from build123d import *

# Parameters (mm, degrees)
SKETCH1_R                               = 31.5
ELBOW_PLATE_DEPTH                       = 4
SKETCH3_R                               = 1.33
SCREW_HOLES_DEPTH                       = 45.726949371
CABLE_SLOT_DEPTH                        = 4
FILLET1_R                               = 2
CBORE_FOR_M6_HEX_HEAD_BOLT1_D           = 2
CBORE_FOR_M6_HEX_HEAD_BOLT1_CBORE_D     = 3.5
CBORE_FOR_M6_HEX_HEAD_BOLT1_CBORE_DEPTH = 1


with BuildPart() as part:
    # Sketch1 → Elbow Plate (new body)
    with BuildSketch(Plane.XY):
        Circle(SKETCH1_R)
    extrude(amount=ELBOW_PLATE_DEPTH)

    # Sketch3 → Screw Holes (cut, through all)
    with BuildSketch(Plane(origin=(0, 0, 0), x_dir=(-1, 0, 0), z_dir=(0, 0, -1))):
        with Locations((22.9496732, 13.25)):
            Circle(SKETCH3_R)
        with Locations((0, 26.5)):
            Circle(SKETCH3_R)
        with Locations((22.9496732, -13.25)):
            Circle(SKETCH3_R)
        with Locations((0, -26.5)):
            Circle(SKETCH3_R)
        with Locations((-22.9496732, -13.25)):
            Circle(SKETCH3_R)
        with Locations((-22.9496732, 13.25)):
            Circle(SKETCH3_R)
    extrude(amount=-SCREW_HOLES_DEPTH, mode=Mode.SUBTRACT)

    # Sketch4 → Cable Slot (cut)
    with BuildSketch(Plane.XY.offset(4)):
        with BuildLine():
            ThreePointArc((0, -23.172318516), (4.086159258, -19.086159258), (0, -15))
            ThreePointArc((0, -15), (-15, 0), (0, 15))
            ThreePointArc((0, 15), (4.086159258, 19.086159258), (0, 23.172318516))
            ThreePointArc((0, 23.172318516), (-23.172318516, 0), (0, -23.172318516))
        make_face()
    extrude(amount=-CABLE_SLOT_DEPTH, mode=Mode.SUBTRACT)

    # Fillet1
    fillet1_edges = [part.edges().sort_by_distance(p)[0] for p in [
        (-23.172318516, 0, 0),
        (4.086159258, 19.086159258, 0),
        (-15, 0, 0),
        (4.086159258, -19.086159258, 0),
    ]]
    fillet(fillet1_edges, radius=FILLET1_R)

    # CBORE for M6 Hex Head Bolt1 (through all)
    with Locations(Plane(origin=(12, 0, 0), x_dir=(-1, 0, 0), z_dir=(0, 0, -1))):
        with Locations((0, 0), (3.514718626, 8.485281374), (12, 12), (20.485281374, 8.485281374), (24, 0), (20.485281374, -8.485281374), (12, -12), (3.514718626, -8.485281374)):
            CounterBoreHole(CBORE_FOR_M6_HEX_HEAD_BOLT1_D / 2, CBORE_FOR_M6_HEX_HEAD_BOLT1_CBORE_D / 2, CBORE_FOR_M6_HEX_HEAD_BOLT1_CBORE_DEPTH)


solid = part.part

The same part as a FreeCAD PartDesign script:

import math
import FreeCAD as App
import Part
import Sketcher

V = App.Vector
Q = App.Units.Quantity


def edges_at(feature, points):
    """Names of the edges that pass closest to the given points."""
    edges = feature.Shape.Edges
    near = lambda p: min(range(len(edges)), key=lambda i: edges[i].distToShape(Part.Vertex(*p))[0])
    return sorted({f"Edge{near(p) + 1}" for p in points})

doc = App.newDocument("Part")
body = doc.addObject("PartDesign::Body", "Body")

# Sketch on XY plane
sketch1 = body.newObject("Sketcher::SketchObject", "Sketch")
sketch1.AttachmentSupport = (doc.getObject("XY_Plane"), [""])
sketch1.MapMode = "FlatFace"
sketch1.addGeometry(Part.Circle(V(0, 0, 0), V(0, 0, 1), 32), False)
sketch1.addConstraint([
    Sketcher.Constraint("Coincident", 0, 3, -1, 1),
    Sketcher.Constraint("Diameter", 0, Q("63 mm")),
])
pad1 = body.newObject("PartDesign::Pad", "Pad")
pad1.Profile = sketch1
pad1.Length = 4

# Sketch on XY plane
sketch2 = body.newObject("Sketcher::SketchObject", "Sketch001")
sketch2.AttachmentSupport = (doc.getObject("XY_Plane"), [""])
sketch2.MapMode = "FlatFace"
sketch2.addGeometry([
    Part.Circle(V(-22.9, 13.2, 0), V(0, 0, 1), 1.3),  # 0
    Part.Circle(V(0, 26.5, 0), V(0, 0, 1), 1.3),  # 1
    Part.Circle(V(-22.9, -13.2, 0), V(0, 0, 1), 1.3),  # 2
    Part.Circle(V(0, -26.5, 0), V(0, 0, 1), 1.3),  # 3
    Part.Circle(V(22.9, -13.2, 0), V(0, 0, 1), 1.3),  # 4
    Part.Circle(V(22.9, 13.2, 0), V(0, 0, 1), 1.3),  # 5
], False)
sketch2.addConstraint([
    Sketcher.Constraint("Equal", 0, 1),
    Sketcher.Constraint("Equal", 1, 2),
    Sketcher.Constraint("Equal", 2, 3),
    Sketcher.Constraint("Equal", 3, 4),
    Sketcher.Constraint("Equal", 4, 5),
    Sketcher.Constraint("Symmetric", 1, 3, 3, 3, -1, 1),
    Sketcher.Constraint("Symmetric", 0, 3, 4, 3, -1, 1),
    Sketcher.Constraint("Symmetric", 2, 3, 5, 3, -1, 1),
    Sketcher.Constraint("Symmetric", 2, 3, 4, 3, -2),
    Sketcher.Constraint("PointOnObject", 1, 3, -2),
    Sketcher.Constraint("Diameter", 0, Q("2.66 mm")),
    Sketcher.Constraint("DistanceY", 3, 3, 1, 3, Q("53 mm")),
    Sketcher.Constraint("DistanceY", 2, 3, 0, 3, Q("26.5 mm")),
    Sketcher.Constraint("DistanceX", 0, 3, -1, 1, Q("22.949673 mm")),
])
pocket1 = body.newObject("PartDesign::Pocket", "Pocket")
pocket1.Profile = sketch2
pocket1.Type = "ThroughAll"
pocket1.Reversed = True

# Sketch on XY plane
sketch3 = body.newObject("Sketcher::SketchObject", "Sketch002")
sketch3.AttachmentSupport = (doc.getObject("XY_Plane"), [""])
sketch3.MapMode = "FlatFace"
sketch3.AttachmentOffset = App.Placement(V(0, 0, 4), App.Rotation())
sketch3.addGeometry([
    Part.ArcOfCircle(Part.Circle(V(0, -19.1, 0), V(0, 0, 1), 4.1), math.radians(-90), math.radians(90)),
    Part.ArcOfCircle(Part.Circle(V(0, 0, 0), V(0, 0, 1), 15), math.radians(90), math.radians(270)),
    Part.ArcOfCircle(Part.Circle(V(0, 19.1, 0), V(0, 0, 1), 4.1), math.radians(-90), math.radians(90)),
    Part.ArcOfCircle(Part.Circle(V(0, 0, 0), V(0, 0, 1), 23.2), math.radians(90), math.radians(270)),
], False)
sketch3.addConstraint([
    Sketcher.Constraint("Tangent", 0, 2, 1, 2),
    Sketcher.Constraint("Tangent", 1, 1, 2, 1),
    Sketcher.Constraint("Tangent", 2, 2, 3, 1),
    Sketcher.Constraint("Tangent", 3, 2, 0, 1),
    Sketcher.Constraint("Coincident", 1, 3, -1, 1),
    Sketcher.Constraint("Coincident", 3, 3, -1, 1),
    Sketcher.Constraint("PointOnObject", 0, 3, -2),
    Sketcher.Constraint("PointOnObject", 2, 3, -2),
    Sketcher.Constraint("Radius", 1, Q("15 mm")),
    Sketcher.Constraint("Radius", 0, Q("4.086159 mm")),
])
pocket2 = body.newObject("PartDesign::Pocket", "Pocket001")
pocket2.Profile = sketch3
pocket2.Length = 4
doc.recompute()

fillet = body.newObject("PartDesign::Fillet", "Fillet")
fillet.Base = (pocket2, edges_at(pocket2, [
    (-23.172, 0, 0),
    (4.086, 19.086, 0),
    (-15, 0, 0),
    (4.086, -19.086, 0),
]))
fillet.Radius = 2

# Sketch on XY plane
sketch4 = body.newObject("Sketcher::SketchObject", "Sketch003")
sketch4.AttachmentSupport = (doc.getObject("XY_Plane"), [""])
sketch4.MapMode = "FlatFace"
sketch4.addGeometry([
    Part.Circle(V(12, 0, 0), V(0, 0, 1), 1),  # 0
    Part.Circle(V(8.5, 8.5, 0), V(0, 0, 1), 1),  # 1
    Part.Circle(V(0, 12, 0), V(0, 0, 1), 1),  # 2
    Part.Circle(V(-8.5, 8.5, 0), V(0, 0, 1), 1),  # 3
    Part.Circle(V(-12, 0, 0), V(0, 0, 1), 1),  # 4
    Part.Circle(V(-8.5, -8.5, 0), V(0, 0, 1), 1),  # 5
    Part.Circle(V(0, -12, 0), V(0, 0, 1), 1),  # 6
    Part.Circle(V(8.5, -8.5, 0), V(0, 0, 1), 1),  # 7
], False)
sketch4.addConstraint([
    Sketcher.Constraint("Equal", 0, 1),
    Sketcher.Constraint("Equal", 1, 2),
    Sketcher.Constraint("Equal", 2, 3),
    Sketcher.Constraint("Equal", 3, 4),
    Sketcher.Constraint("Equal", 4, 5),
    Sketcher.Constraint("Equal", 5, 6),
    Sketcher.Constraint("Equal", 6, 7),
    Sketcher.Constraint("Symmetric", 0, 3, 4, 3, -1, 1),
    Sketcher.Constraint("Symmetric", 1, 3, 5, 3, -1, 1),
    Sketcher.Constraint("Symmetric", 2, 3, 6, 3, -1, 1),
    Sketcher.Constraint("Symmetric", 3, 3, 7, 3, -1, 1),
    Sketcher.Constraint("Symmetric", 1, 3, 3, 3, -2),
    Sketcher.Constraint("PointOnObject", 0, 3, -1),
    Sketcher.Constraint("PointOnObject", 2, 3, -2),
    Sketcher.Constraint("Diameter", 0, Q("2 mm")),
    Sketcher.Constraint("DistanceX", -1, 1, 0, 3, Q("12 mm")),
    Sketcher.Constraint("DistanceY", -1, 1, 2, 3, Q("12 mm")),
    Sketcher.Constraint("DistanceX", -1, 1, 1, 3, Q("8.485281 mm")),
    Sketcher.Constraint("DistanceY", -1, 1, 1, 3, Q("8.485281 mm")),
])
doc.recompute()
hole = body.newObject("PartDesign::Hole", "Hole")
hole.Profile = sketch4
hole.ThreadType = "None"
hole.Diameter = 2
hole.DepthType = "ThroughAll"
hole.HoleCutType = "Counterbore"
hole.HoleCutDiameter = 3.5
hole.HoleCutDepth = 1
hole.Reversed = True

doc.recompute()
